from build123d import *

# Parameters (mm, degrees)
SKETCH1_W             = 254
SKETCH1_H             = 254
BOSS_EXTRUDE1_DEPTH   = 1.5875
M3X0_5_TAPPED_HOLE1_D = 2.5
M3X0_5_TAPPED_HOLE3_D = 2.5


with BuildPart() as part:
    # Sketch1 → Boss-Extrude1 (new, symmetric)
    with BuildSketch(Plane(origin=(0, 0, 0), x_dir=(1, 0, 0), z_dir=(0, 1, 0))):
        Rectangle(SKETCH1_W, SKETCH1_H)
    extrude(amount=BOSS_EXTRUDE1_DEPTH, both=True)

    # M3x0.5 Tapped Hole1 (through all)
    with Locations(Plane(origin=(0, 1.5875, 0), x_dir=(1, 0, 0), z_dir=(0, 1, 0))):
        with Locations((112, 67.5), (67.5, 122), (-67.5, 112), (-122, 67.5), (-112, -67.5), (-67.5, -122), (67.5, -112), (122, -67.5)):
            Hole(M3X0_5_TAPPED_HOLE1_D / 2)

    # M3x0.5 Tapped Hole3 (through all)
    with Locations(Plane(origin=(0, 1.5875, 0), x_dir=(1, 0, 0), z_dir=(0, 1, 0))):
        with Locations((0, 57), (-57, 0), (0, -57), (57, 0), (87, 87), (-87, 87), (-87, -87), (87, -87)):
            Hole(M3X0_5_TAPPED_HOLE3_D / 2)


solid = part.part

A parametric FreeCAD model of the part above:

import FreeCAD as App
import Part
import Sketcher
from FreeCAD import Vector
Q = App.Units.Quantity

doc = App.newDocument("Part")
body = doc.addObject("PartDesign::Body", "Body")

# Sketch on XZ plane
sketch1 = doc.addObject("Sketcher::SketchObject", "Sketch")
body.addObject(sketch1)
sketch1.AttachmentSupport = (doc.XZ_Plane, [""])
sketch1.MapMode = "FlatFace"
sketch1.addGeometry(Part.LineSegment(Vector(-127, -127, 0), Vector(-127, 127, 0)), False)
sketch1.addGeometry(Part.LineSegment(Vector(-127, 127, 0), Vector(127, 127, 0)), False)
sketch1.addGeometry(Part.LineSegment(Vector(127, 127, 0), Vector(127, -127, 0)), False)
sketch1.addGeometry(Part.LineSegment(Vector(127, -127, 0), Vector(-127, -127, 0)), False)
sketch1.addConstraint(Sketcher.Constraint("Coincident", 0, 2, 1, 1))
sketch1.addConstraint(Sketcher.Constraint("Coincident", 1, 2, 2, 1))
sketch1.addConstraint(Sketcher.Constraint("Coincident", 2, 2, 3, 1))
sketch1.addConstraint(Sketcher.Constraint("Coincident", 3, 2, 0, 1))
sketch1.addConstraint(Sketcher.Constraint("Vertical", 0))
sketch1.addConstraint(Sketcher.Constraint("Horizontal", 1))
sketch1.addConstraint(Sketcher.Constraint("Vertical", 2))
sketch1.addConstraint(Sketcher.Constraint("Horizontal", 3))
sketch1.addConstraint(Sketcher.Constraint("Symmetric", 0, 2, 2, 2, -1, 1))
sketch1.addConstraint(Sketcher.Constraint("Equal", 3, 0))
sketch1.addConstraint(Sketcher.Constraint("DistanceX", 1, 1, 1, 2, Q("10 in")))
pad1 = doc.addObject("PartDesign::Pad", "Pad")
body.addObject(pad1)
pad1.Profile = sketch1
pad1.Length = Q("0.125 in")
pad1.Midplane = True

# Sketch on XZ plane
sketch2 = doc.addObject("Sketcher::SketchObject", "Sketch001")
body.addObject(sketch2)
sketch2.AttachmentSupport = (doc.XZ_Plane, [""])
sketch2.MapMode = "FlatFace"
sketch2.AttachmentOffset = App.Placement(Vector(0, 0, -0.0625 * 25.4), App.Rotation())
sketch2.addGeometry(Part.Circle(Vector(112, -67.5, 0), Vector(0, 0, 1), 1.2), False)
sketch2.addGeometry(Part.Circle(Vector(67.5, -122, 0), Vector(0, 0, 1), 1.2), False)
sketch2.addGeometry(Part.Circle(Vector(-67.5, -112, 0), Vector(0, 0, 1), 1.2), False)
sketch2.addGeometry(Part.Circle(Vector(-122, -67.5, 0), Vector(0, 0, 1), 1.2), False)
sketch2.addGeometry(Part.Circle(Vector(-112, 67.5, 0), Vector(0, 0, 1), 1.2), False)
sketch2.addGeometry(Part.Circle(Vector(-67.5, 122, 0), Vector(0, 0, 1), 1.2), False)
sketch2.addGeometry(Part.Circle(Vector(67.5, 112, 0), Vector(0, 0, 1), 1.2), False)
sketch2.addGeometry(Part.Circle(Vector(122, 67.5, 0), Vector(0, 0, 1), 1.2), False)
sketch2.addConstraint(Sketcher.Constraint("Equal", 0, 1))
sketch2.addConstraint(Sketcher.Constraint("Equal", 1, 2))
sketch2.addConstraint(Sketcher.Constraint("Equal", 2, 3))
sketch2.addConstraint(Sketcher.Constraint("Equal", 3, 4))
sketch2.addConstraint(Sketcher.Constraint("Equal", 4, 5))
sketch2.addConstraint(Sketcher.Constraint("Equal", 5, 6))
sketch2.addConstraint(Sketcher.Constraint("Equal", 6, 7))
sketch2.addConstraint(Sketcher.Constraint("Symmetric", 0, 3, 4, 3, -1, 1))
sketch2.addConstraint(Sketcher.Constraint("Symmetric", 1, 3, 5, 3, -1, 1))
sketch2.addConstraint(Sketcher.Constraint("Symmetric", 2, 3, 6, 3, -1, 1))
sketch2.addConstraint(Sketcher.Constraint("Symmetric", 3, 3, 7, 3, -1, 1))
sketch2.addConstraint(Sketcher.Constraint("Horizontal", 0, 3, 3, 3))
sketch2.addConstraint(Sketcher.Constraint("Vertical", 2, 3, 5, 3))
sketch2.addConstraint(Sketcher.Constraint("Diameter", 0, 2.5))
sketch2.addConstraint(Sketcher.Constraint("DistanceX", -1, 1, 0, 3, 112.0))
sketch2.addConstraint(Sketcher.Constraint("DistanceY", 0, 3, -1, 1, 67.5))
sketch2.addConstraint(Sketcher.Constraint("DistanceX", -1, 1, 1, 3, 67.5))
sketch2.addConstraint(Sketcher.Constraint("DistanceY", 1, 3, -1, 1, 122.0))
sketch2.addConstraint(Sketcher.Constraint("DistanceY", 2, 3, -1, 1, 112.0))
sketch2.addConstraint(Sketcher.Constraint("DistanceX", 3, 3, -1, 1, 122.0))
doc.recompute()
hole = doc.addObject("PartDesign::Hole", "Hole")
body.addObject(hole)
hole.Profile = sketch2
hole.ThreadType = "None"
hole.Diameter = 2.5
hole.DepthType = "ThroughAll"
hole.Reversed = True

# Sketch on XZ plane
sketch3 = doc.addObject("Sketcher::SketchObject", "Sketch002")
body.addObject(sketch3)
sketch3.AttachmentSupport = (doc.XZ_Plane, [""])
sketch3.MapMode = "FlatFace"
sketch3.AttachmentOffset = App.Placement(Vector(0, 0, -0.0625 * 25.4), App.Rotation())
sketch3.addGeometry(Part.Circle(Vector(0, -57, 0), Vector(0, 0, 1), 1.2), False)
sketch3.addGeometry(Part.Circle(Vector(-57, 0, 0), Vector(0, 0, 1), 1.2), False)
sketch3.addGeometry(Part.Circle(Vector(0, 57, 0), Vector(0, 0, 1), 1.2), False)
sketch3.addGeometry(Part.Circle(Vector(57, 0, 0), Vector(0, 0, 1), 1.2), False)
sketch3.addGeometry(Part.Circle(Vector(87, -87, 0), Vector(0, 0, 1), 1.2), False)
sketch3.addGeometry(Part.Circle(Vector(-87, -87, 0), Vector(0, 0, 1), 1.2), False)
sketch3.addGeometry(Part.Circle(Vector(-87, 87, 0), Vector(0, 0, 1), 1.2), False)
sketch3.addGeometry(Part.Circle(Vector(87, 87, 0), Vector(0, 0, 1), 1.2), False)
sketch3.addConstraint(Sketcher.Constraint("Equal", 0, 1))
sketch3.addConstraint(Sketcher.Constraint("Equal", 1, 2))
sketch3.addConstraint(Sketcher.Constraint("Equal", 2, 3))
sketch3.addConstraint(Sketcher.Constraint("Equal", 3, 4))
sketch3.addConstraint(Sketcher.Constraint("Equal", 4, 5))
sketch3.addConstraint(Sketcher.Constraint("Equal", 5, 6))
sketch3.addConstraint(Sketcher.Constraint("Equal", 6, 7))
sketch3.addConstraint(Sketcher.Constraint("Symmetric", 0, 3, 2, 3, -1, 1))
sketch3.addConstraint(Sketcher.Constraint("Symmetric", 1, 3, 3, 3, -1, 1))
sketch3.addConstraint(Sketcher.Constraint("Symmetric", 4, 3, 6, 3, -1, 1))
sketch3.addConstraint(Sketcher.Constraint("Symmetric", 5, 3, 7, 3, -1, 1))
sketch3.addConstraint(Sketcher.Constraint("Symmetric", 4, 3, 5, 3, -2))
sketch3.addConstraint(Sketcher.Constraint("PointOnObject", 0, 3, -2))
sketch3.addConstraint(Sketcher.Constraint("PointOnObject", 1, 3, -1))
sketch3.addConstraint(Sketcher.Constraint("Diameter", 0, 2.5))
sketch3.addConstraint(Sketcher.Constraint("DistanceY", 0, 3, -1, 1, 57.0))
sketch3.addConstraint(Sketcher.Constraint("DistanceX", 1, 3, -1, 1, 57.0))
sketch3.addConstraint(Sketcher.Constraint("DistanceX", -1, 1, 4, 3, 87.0))
sketch3.addConstraint(Sketcher.Constraint("DistanceY", 4, 3, -1, 1, 87.0))
doc.recompute()
hole2 = doc.addObject("PartDesign::Hole", "Hole001")
body.addObject(hole2)
hole2.Profile = sketch3
hole2.ThreadType = "None"
hole2.Diameter = 2.5
hole2.DepthType = "ThroughAll"
hole2.Reversed = True

doc.recompute()
